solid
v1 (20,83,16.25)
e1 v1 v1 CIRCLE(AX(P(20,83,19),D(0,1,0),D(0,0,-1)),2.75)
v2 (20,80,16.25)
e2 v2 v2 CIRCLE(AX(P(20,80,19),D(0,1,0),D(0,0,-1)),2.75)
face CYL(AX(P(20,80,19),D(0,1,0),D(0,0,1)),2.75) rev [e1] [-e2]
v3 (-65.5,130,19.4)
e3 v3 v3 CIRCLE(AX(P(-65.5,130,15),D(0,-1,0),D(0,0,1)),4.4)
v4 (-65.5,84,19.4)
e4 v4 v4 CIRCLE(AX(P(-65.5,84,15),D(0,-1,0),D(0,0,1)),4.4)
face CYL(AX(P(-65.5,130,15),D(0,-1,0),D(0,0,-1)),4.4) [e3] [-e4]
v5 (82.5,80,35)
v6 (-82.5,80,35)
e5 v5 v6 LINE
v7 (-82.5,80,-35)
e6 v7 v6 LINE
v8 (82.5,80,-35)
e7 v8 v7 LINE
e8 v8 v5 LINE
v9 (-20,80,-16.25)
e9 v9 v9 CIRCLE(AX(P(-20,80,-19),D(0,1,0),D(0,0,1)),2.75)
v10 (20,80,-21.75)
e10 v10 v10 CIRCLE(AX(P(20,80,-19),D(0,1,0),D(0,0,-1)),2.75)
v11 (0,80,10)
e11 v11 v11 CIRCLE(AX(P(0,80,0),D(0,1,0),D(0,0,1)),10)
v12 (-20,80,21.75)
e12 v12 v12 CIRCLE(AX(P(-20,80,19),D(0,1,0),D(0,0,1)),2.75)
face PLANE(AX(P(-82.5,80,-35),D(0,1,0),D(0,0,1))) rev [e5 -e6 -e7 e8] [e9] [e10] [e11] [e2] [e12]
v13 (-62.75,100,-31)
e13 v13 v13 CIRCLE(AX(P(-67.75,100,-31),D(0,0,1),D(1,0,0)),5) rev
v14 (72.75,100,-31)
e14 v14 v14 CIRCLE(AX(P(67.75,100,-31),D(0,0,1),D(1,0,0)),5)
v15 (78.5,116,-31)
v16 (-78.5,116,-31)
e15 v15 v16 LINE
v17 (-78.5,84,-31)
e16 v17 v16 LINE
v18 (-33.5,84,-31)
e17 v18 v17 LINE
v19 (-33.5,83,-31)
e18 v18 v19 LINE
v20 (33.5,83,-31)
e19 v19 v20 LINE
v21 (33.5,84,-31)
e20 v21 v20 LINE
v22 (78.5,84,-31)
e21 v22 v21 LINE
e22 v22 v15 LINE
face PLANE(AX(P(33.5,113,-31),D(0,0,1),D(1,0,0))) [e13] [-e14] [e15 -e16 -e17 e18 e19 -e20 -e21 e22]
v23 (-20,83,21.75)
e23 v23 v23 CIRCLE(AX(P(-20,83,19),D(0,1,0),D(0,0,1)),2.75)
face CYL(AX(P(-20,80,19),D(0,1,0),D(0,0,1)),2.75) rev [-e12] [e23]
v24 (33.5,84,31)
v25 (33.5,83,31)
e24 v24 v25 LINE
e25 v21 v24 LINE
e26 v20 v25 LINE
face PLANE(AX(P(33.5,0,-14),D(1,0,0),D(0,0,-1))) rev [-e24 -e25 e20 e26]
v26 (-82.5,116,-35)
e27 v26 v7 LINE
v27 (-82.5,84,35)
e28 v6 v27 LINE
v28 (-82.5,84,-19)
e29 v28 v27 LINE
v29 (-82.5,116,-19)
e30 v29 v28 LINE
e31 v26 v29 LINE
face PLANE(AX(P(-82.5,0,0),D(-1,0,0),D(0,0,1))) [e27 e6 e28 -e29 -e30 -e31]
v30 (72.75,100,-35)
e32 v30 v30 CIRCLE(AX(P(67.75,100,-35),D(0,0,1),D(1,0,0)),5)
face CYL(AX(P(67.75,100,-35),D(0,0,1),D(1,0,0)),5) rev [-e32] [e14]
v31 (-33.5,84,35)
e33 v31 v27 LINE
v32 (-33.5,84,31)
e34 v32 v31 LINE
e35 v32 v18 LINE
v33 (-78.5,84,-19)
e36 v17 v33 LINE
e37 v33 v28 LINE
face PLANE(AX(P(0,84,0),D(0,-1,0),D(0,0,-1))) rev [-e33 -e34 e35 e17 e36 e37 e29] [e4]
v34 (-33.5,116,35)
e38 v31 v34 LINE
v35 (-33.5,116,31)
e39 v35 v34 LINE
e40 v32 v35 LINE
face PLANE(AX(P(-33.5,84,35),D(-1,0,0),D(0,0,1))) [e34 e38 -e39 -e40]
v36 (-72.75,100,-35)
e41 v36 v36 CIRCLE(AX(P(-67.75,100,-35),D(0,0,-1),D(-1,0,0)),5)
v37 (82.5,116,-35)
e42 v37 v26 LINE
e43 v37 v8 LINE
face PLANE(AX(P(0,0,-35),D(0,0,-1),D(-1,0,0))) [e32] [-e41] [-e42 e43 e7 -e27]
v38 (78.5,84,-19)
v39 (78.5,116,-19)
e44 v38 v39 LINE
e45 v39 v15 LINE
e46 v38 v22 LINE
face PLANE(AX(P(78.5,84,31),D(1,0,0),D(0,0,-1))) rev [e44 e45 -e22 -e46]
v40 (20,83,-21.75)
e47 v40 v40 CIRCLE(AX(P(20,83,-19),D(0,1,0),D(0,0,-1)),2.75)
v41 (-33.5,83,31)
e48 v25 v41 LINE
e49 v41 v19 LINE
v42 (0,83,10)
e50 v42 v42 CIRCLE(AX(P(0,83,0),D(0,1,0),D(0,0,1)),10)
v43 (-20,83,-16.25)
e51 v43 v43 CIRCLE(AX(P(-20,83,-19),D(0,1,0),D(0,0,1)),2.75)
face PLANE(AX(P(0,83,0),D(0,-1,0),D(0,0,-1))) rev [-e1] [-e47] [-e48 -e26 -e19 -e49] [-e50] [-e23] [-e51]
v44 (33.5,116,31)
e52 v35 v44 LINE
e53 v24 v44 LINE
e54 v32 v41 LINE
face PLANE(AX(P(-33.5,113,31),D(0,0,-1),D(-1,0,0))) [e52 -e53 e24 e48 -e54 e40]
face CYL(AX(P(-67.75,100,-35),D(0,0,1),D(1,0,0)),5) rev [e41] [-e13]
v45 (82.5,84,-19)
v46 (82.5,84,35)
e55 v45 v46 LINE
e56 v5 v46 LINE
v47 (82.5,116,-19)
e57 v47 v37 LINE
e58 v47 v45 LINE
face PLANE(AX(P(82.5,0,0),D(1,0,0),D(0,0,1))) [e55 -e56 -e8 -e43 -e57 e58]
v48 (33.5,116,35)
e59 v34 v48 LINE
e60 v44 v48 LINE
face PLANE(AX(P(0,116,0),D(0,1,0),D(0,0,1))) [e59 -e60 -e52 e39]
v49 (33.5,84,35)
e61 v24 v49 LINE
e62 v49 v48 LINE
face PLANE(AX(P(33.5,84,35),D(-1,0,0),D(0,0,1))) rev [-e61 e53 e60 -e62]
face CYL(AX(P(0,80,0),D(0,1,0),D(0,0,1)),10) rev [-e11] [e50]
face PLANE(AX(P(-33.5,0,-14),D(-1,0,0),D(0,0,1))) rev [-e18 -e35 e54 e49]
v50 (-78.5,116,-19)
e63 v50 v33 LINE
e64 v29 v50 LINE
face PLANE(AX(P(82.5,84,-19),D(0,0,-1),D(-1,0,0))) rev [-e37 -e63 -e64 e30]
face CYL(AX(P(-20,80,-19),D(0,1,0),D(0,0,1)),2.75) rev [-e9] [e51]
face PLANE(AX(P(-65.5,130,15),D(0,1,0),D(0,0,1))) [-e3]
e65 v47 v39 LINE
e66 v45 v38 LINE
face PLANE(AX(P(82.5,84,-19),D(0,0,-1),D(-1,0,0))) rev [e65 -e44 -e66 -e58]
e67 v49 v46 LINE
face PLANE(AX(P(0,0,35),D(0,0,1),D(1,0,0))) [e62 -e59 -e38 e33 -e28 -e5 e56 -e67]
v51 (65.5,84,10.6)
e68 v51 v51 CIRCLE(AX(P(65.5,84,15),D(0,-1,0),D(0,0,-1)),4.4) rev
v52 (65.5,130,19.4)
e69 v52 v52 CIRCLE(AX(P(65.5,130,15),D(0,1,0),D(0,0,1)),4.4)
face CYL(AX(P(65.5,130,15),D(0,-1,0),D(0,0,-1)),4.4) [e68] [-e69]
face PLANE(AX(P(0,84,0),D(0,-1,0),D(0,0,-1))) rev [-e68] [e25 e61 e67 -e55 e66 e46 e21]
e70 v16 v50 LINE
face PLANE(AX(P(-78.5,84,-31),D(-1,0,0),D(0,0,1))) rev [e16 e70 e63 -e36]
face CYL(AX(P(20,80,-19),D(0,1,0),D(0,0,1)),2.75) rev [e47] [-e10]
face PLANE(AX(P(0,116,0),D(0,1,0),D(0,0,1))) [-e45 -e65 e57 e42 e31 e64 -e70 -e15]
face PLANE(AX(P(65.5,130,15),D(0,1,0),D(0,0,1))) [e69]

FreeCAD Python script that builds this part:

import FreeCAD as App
import Part
import Sketcher

V = App.Vector
Q = App.Units.Quantity


def add_polygon(sketch, points):
    """Adds a closed chain of lines whose ends are joined by coincident constraints."""
    first, n = sketch.GeometryCount, len(points)
    for a, b in zip(points, points[1:] + points[:1]):
        sketch.addGeometry(Part.LineSegment(App.Vector(*a, 0), App.Vector(*b, 0)), False)
    for i in range(n):
        sketch.addConstraint(Sketcher.Constraint("Coincident", first + i, 2, first + (i + 1) % n, 1))

doc = App.newDocument("Part")
params = doc.addObject("Spreadsheet::Sheet", "Params")
for row, (alias, value) in enumerate([
    ("sketch1_diameter", "10 mm"),
    ("sketch1_diameter2", "3.4 mm"),
    ("sketch1_width", "75 mm"),
    ("sketch1_width2", "10 mm"),
    ("sketch1_height", "40 mm"),
    ("pad1_length", "3 mm"),
    ("sketch2_width", "67 mm"),
    ("sketch2_height", "28 mm"),
    ("sketch3_width", "75 mm"),
    ("sketch3_width2", "67 mm"),
    ("sketch3_height", "70 mm"),
    ("sketch3_height2", "40 mm"),
    ("pad2_length", "110 mm"),
    ("pad2_length2", "3 mm"),
    ("sketch4_width", "67 mm"),
    ("sketch4_height", "11 mm"),
    ("sketch5_width", "37 mm"),
    ("sketch5_height", "70 mm"),
    ("pad3_length", "45 mm"),
    ("sketch6_width", "45 mm"),
    ("sketch6_height", "62 mm"),
    ("pocket3_length", "29 mm"),
    ("sketch7_width", "45 mm"),
    ("sketch7_height", "4 mm"),
    ("sketch8_height", "38 mm"),
    ("sketch8_width", "28.5 mm"),
    ("sketch9_width", "5 mm"),
    ("sketch9_height", "38 mm"),
    ("pad4_length", "32 mm"),
    ("sketch10_diameter", "10 mm"),
    ("sketch10_diameter2", "3.4 mm"),
    ("pocket6_length", "32 mm"),
    ("sketch11_width", "165 mm"),
    ("sketch11_width2", "157 mm"),
    ("sketch11_height", "70 mm"),
    ("sketch11_height2", "62 mm"),
    ("pad5_length", "3 mm"),
    ("sketch12_width", "20 mm"),
    ("sketch13_diameter", "10 mm"),
    ("sketch14_width", "5 mm"),
    ("sketch14_height", "38 mm"),
    ("pad6_length", "32 mm"),
    ("sketch15_diameter", "10 mm"),
    ("sketch15_diameter2", "3.4 mm"),
    ("pocket9_length", "32 mm"),
    ("sketch16_height", "38 mm"),
    ("sketch16_width", "3.5 mm"),
    ("pocket10_length", "10 mm"),
    ("sketch17_diameter", "2.4 mm"),
    ("pocket11_length", "10 mm"),
    ("sketch18_width", "10 mm"),
    ("sketch18_height", "80 mm"),
    ("sketch19_width", "55 mm"),
    ("sketch19_height", "80 mm"),
    ("sketch20_width", "67 mm"),
    ("sketch20_height", "62 mm"),
    ("pad7_length", "3 mm"),
    ("sketch21_diameter", "20 mm"),
    ("sketch21_diameter2", "5.5 mm"),
    ("sketch22_width", "64 mm"),
    ("sketch22_height", "38 mm"),
    ("pocket15_length", "115 mm"),
    ("sketch23_width", "49 mm"),
    ("sketch23_height", "35 mm"),
    ("pocket16_length", "32 mm"),
    ("sketch24_diameter", "8.8 mm"),
    ("pad8_length", "46 mm"),
], start=1):
    params.set(f"A{row}", alias)
    params.set(f"B{row}", "=" + value)
    params.setAlias(f"B{row}", alias)

body = doc.addObject("PartDesign::Body", "Body")

sketch1 = doc.addObject("Sketcher::SketchObject", "Sketch")
body.addObject(sketch1)
sketch1.AttachmentSupport = (doc.XZ_Plane, [""])
sketch1.MapMode = "FlatFace"
add_polygon(sketch1, [(-37.5, -20), (-37.5, 20), (37.5, 20), (37.5, -20)])
sketch1.addGeometry(Part.Circle(V(-30, 8.2, 0), V(0, 0, 1), 1.7), False)
sketch1.addGeometry(Part.Circle(V(-12, 8.2, 0), V(0, 0, 1), 1.7), False)
sketch1.addGeometry(Part.Circle(V(12, 8.2, 0), V(0, 0, 1), 1.7), False)
sketch1.addGeometry(Part.Circle(V(30, 8.2, 0), V(0, 0, 1), 1.7), False)
sketch1.addGeometry(Part.Circle(V(-21, 0, 0), V(0, 0, 1), 5), False)
add_polygon(sketch1, [(5, 10), (-5, 10), (-5, -10), (5, -10)])
sketch1.addGeometry(Part.Circle(V(-30, -8.2, 0), V(0, 0, 1), 1.7), False)
sketch1.addGeometry(Part.Circle(V(-12, -8.2, 0), V(0, 0, 1), 1.7), False)
sketch1.addGeometry(Part.Circle(V(21, 0, 0), V(0, 0, 1), 5), False)
sketch1.addGeometry(Part.Circle(V(12, -8.2, 0), V(0, 0, 1), 1.7), False)
sketch1.addGeometry(Part.Circle(V(30, -8.2, 0), V(0, 0, 1), 1.7), False)
sketch1.addConstraint([
    Sketcher.Constraint("Vertical", 0),
    Sketcher.Constraint("Horizontal", 1),
    Sketcher.Constraint("Vertical", 2),
    Sketcher.Constraint("Horizontal", 3),
    Sketcher.Constraint("Horizontal", 9),
    Sketcher.Constraint("Vertical", 10),
    Sketcher.Constraint("Horizontal", 11),
    Sketcher.Constraint("Vertical", 12),
    Sketcher.Constraint("Equal", 4, 5),
    Sketcher.Constraint("Equal", 5, 6),
    Sketcher.Constraint("Equal", 6, 7),
    Sketcher.Constraint("Equal", 7, 13),
    Sketcher.Constraint("Equal", 13, 14),
    Sketcher.Constraint("Equal", 8, 15),
    Sketcher.Constraint("Equal", 14, 16),
    Sketcher.Constraint("Equal", 16, 17),
    Sketcher.Constraint("Symmetric", 7, 3, 13, 3, -1, 1),
    Sketcher.Constraint("Symmetric", 6, 3, 14, 3, -1, 1),
    Sketcher.Constraint("Symmetric", 8, 3, 15, 3, -1, 1),
    Sketcher.Constraint("Symmetric", 5, 3, 16, 3, -1, 1),
    Sketcher.Constraint("Symmetric", 4, 3, 17, 3, -1, 1),
    Sketcher.Constraint("Symmetric", 0, 2, 2, 2, -1, 1),
    Sketcher.Constraint("Symmetric", 9, 2, 11, 2, -1, 1),
    Sketcher.Constraint("Symmetric", 5, 3, 6, 3, -2),
    Sketcher.Constraint("Symmetric", 4, 3, 7, 3, -2),
    Sketcher.Constraint("PointOnObject", 8, 3, -1),
    Sketcher.Constraint("Horizontal", 4, 3, 5, 3),
    Sketcher.Constraint("Diameter", 8, Q("10 mm")),
    Sketcher.Constraint("Diameter", 4, Q("3.4 mm")),
    Sketcher.Constraint("DistanceX", 1, 1, 1, 2, Q("75 mm")),
    Sketcher.Constraint("DistanceX", 9, 2, 9, 1, Q("10 mm")),
    Sketcher.Constraint("DistanceY", 0, 1, 0, 2, Q("40 mm")),
    Sketcher.Constraint("DistanceY", 10, 2, 10, 1, Q("20 mm")),
    Sketcher.Constraint("DistanceX", 4, 3, -1, 1, Q("30 mm")),
    Sketcher.Constraint("DistanceX", 5, 3, -1, 1, Q("12 mm")),
    Sketcher.Constraint("DistanceX", 8, 3, -1, 1, Q("21 mm")),
    Sketcher.Constraint("DistanceY", 13, 3, 4, 3, Q("16.5 mm")),
])
sketch1.setExpression("Constraints[35]", "Params.sketch1_diameter")
sketch1.setExpression("Constraints[36]", "Params.sketch1_diameter2")
sketch1.setExpression("Constraints[37]", "Params.sketch1_width")
sketch1.setExpression("Constraints[38]", "Params.sketch1_width2")
sketch1.setExpression("Constraints[39]", "Params.sketch1_height")
pad1 = doc.addObject("PartDesign::Pad", "Pad")
body.addObject(pad1)
pad1.Profile = sketch1
pad1.setExpression("Length", "Params.pad1_length")
pad1.Reversed = True

sketch2 = doc.addObject("Sketcher::SketchObject", "Sketch001")
body.addObject(sketch2)
sketch2.AttachmentSupport = (doc.XZ_Plane, [""])
sketch2.MapMode = "FlatFace"
sketch2.AttachmentOffset = App.Placement(V(0, 0, -3), App.Rotation())
add_polygon(sketch2, [(-34, -14), (-34, 14), (34, 14), (34, -14)])
sketch2.addConstraint([
    Sketcher.Constraint("Vertical", 0),
    Sketcher.Constraint("Horizontal", 1),
    Sketcher.Constraint("Vertical", 2),
    Sketcher.Constraint("Horizontal", 3),
    Sketcher.Constraint("Symmetric", 0, 2, 2, 2, -1, 1),
    Sketcher.Constraint("DistanceX", 1, 1, 1, 2, Q("67 mm")),
    Sketcher.Constraint("DistanceY", 0, 1, 0, 2, Q("28 mm")),
])
sketch2.setExpression("Constraints[9]", "Params.sketch2_width")
sketch2.setExpression("Constraints[10]", "Params.sketch2_height")
pocket1 = doc.addObject("PartDesign::Pocket", "Pocket")
body.addObject(pocket1)
pocket1.Profile = sketch2
pocket1.Type = "ThroughAll"
pocket1.Midplane = True

sketch3 = doc.addObject("Sketcher::SketchObject", "Sketch002")
body.addObject(sketch3)
sketch3.AttachmentSupport = (doc.XZ_Plane, [""])
sketch3.MapMode = "FlatFace"
sketch3.AttachmentOffset = App.Placement(V(0, 0, -3), App.Rotation())
add_polygon(sketch3, [(38, 35), (38, -35), (-38, -35), (-38, 35)])
add_polygon(sketch3, [(-34, -20), (34, -20), (34, 20), (-34, 20)])
sketch3.addConstraint([
    Sketcher.Constraint("Vertical", 0),
    Sketcher.Constraint("Horizontal", 1),
    Sketcher.Constraint("Vertical", 2),
    Sketcher.Constraint("Horizontal", 3),
    Sketcher.Constraint("Horizontal", 4),
    Sketcher.Constraint("Vertical", 5),
    Sketcher.Constraint("Horizontal", 6),
    Sketcher.Constraint("Vertical", 7),
    Sketcher.Constraint("Symmetric", 0, 2, 2, 2, -1, 1),
    Sketcher.Constraint("Symmetric", 4, 2, 6, 2, -1, 1),
    Sketcher.Constraint("DistanceX", 1, 2, 1, 1, Q("75 mm")),
    Sketcher.Constraint("DistanceX", 4, 1, 4, 2, Q("67 mm")),
    Sketcher.Constraint("DistanceY", 0, 2, 0, 1, Q("70 mm")),
    Sketcher.Constraint("DistanceY", 5, 1, 5, 2, Q("40 mm")),
])
sketch3.setExpression("Constraints[18]", "Params.sketch3_width")
sketch3.setExpression("Constraints[19]", "Params.sketch3_width2")
sketch3.setExpression("Constraints[20]", "Params.sketch3_height")
sketch3.setExpression("Constraints[21]", "Params.sketch3_height2")
pad2 = doc.addObject("PartDesign::Pad", "Pad001")
body.addObject(pad2)
pad2.Profile = sketch3
pad2.Type = "TwoLengths"
pad2.setExpression("Length", "Params.pad2_length")
pad2.setExpression("Length2", "Params.pad2_length2")
pad2.Reversed = True

sketch4 = doc.addObject("Sketcher::SketchObject", "Sketch003")
body.addObject(sketch4)
sketch4.AttachmentSupport = (doc.XZ_Plane, [""])
sketch4.MapMode = "FlatFace"
sketch4.AttachmentOffset = App.Placement(V(0, 0, -3), App.Rotation())
add_polygon(sketch4, [(-34, 20), (-34, 31), (34, 31), (34, 20)])
add_polygon(sketch4, [(-34, -31), (-34, -20), (34, -20), (34, -31)])
sketch4.addConstraint([
    Sketcher.Constraint("Vertical", 0),
    Sketcher.Constraint("Horizontal", 1),
    Sketcher.Constraint("Vertical", 2),
    Sketcher.Constraint("Horizontal", 3),
    Sketcher.Constraint("Vertical", 4),
    Sketcher.Constraint("Horizontal", 5),
    Sketcher.Constraint("Vertical", 6),
    Sketcher.Constraint("Horizontal", 7),
    Sketcher.Constraint("Symmetric", 2, 2, 4, 2, -1, 1),
    Sketcher.Constraint("Symmetric", 0, 2, 6, 2, -1, 1),
    Sketcher.Constraint("Vertical", 3, 2, 4, 2),
    Sketcher.Constraint("DistanceX", 1, 1, 1, 2, Q("67 mm")),
    Sketcher.Constraint("DistanceY", 0, 1, 0, 2, Q("11 mm")),
    Sketcher.Constraint("DistanceY", -1, 1, 0, 2, Q("31 mm")),
])
sketch4.setExpression("Constraints[19]", "Params.sketch4_width")
sketch4.setExpression("Constraints[20]", "Params.sketch4_height")
pocket2 = doc.addObject("PartDesign::Pocket", "Pocket001")
body.addObject(pocket2)
pocket2.Profile = sketch4
pocket2.Type = "ThroughAll"

sketch5 = doc.addObject("Sketcher::SketchObject", "Sketch004")
body.addObject(sketch5)
sketch5.AttachmentSupport = (doc.YZ_Plane, [""])
sketch5.MapMode = "FlatFace"
sketch5.AttachmentOffset = App.Placement(V(0, 0, -37.5), App.Rotation())
add_polygon(sketch5, [(113, -35), (76, -35), (76, 35), (113, 35)])
sketch5.addConstraint([
    Sketcher.Constraint("Horizontal", 0),
    Sketcher.Constraint("Vertical", 1),
    Sketcher.Constraint("Horizontal", 2),
    Sketcher.Constraint("Vertical", 3),
    Sketcher.Constraint("DistanceX", 0, 2, 0, 1, Q("37 mm")),
    Sketcher.Constraint("DistanceY", 1, 1, 1, 2, Q("70 mm")),
    Sketcher.Constraint("DistanceX", -1, 1, 0, 2, Q("76 mm")),
    Sketcher.Constraint("DistanceY", 0, 2, -1, 1, Q("35 mm")),
])
sketch5.setExpression("Constraints[8]", "Params.sketch5_width")
sketch5.setExpression("Constraints[9]", "Params.sketch5_height")
pad3 = doc.addObject("PartDesign::Pad", "Pad002")
body.addObject(pad3)
pad3.Profile = sketch5
pad3.setExpression("Length", "Params.pad3_length")
pad3.Reversed = True
doc.recompute()

mirrored = doc.addObject("PartDesign::Mirrored", "Mirrored")
body.addObject(mirrored)
mirrored.Originals = [pad3]
mirrored.MirrorPlane = (doc.YZ_Plane, [""])
body.Tip = mirrored

sketch6 = doc.addObject("Sketcher::SketchObject", "Sketch005")
body.addObject(sketch6)
sketch6.AttachmentSupport = (doc.XZ_Plane, [""])
sketch6.MapMode = "FlatFace"
sketch6.AttachmentOffset = App.Placement(V(0, 0, -113), App.Rotation())
add_polygon(sketch6, [(-78, -31), (-78, 31), (-34, 31), (-34, -31)])
add_polygon(sketch6, [(34, -31), (34, 31), (78, 31), (78, -31)])
sketch6.addConstraint([
    Sketcher.Constraint("Vertical", 0),
    Sketcher.Constraint("Horizontal", 1),
    Sketcher.Constraint("Vertical", 2),
    Sketcher.Constraint("Horizontal", 3),
    Sketcher.Constraint("Vertical", 4),
    Sketcher.Constraint("Horizontal", 5),
    Sketcher.Constraint("Vertical", 6),
    Sketcher.Constraint("Horizontal", 7),
    Sketcher.Constraint("Symmetric", 2, 2, 4, 2, -1, 1),
    Sketcher.Constraint("Symmetric", 0, 2, 6, 2, -1, 1),
    Sketcher.Constraint("Horizontal", 1, 2, 4, 2),
    Sketcher.Constraint("DistanceX", 1, 1, 1, 2, Q("45 mm")),
    Sketcher.Constraint("DistanceY", 0, 1, 0, 2, Q("62 mm")),
    Sketcher.Constraint("DistanceX", 1, 2, 4, 2, Q("67 mm")),
])
sketch6.setExpression("Constraints[19]", "Params.sketch6_width")
sketch6.setExpression("Constraints[20]", "Params.sketch6_height")
pocket3 = doc.addObject("PartDesign::Pocket", "Pocket002")
body.addObject(pocket3)
pocket3.Profile = sketch6
pocket3.setExpression("Length", "Params.pocket3_length")
pocket3.Reversed = True

sketch7 = doc.addObject("Sketcher::SketchObject", "Sketch006")
body.addObject(sketch7)
sketch7.AttachmentSupport = (doc.XY_Plane, [""])
sketch7.MapMode = "FlatFace"
sketch7.AttachmentOffset = App.Placement(V(0, 0, 35), App.Rotation())
add_polygon(sketch7, [(-82.5, 80), (-82.5, 76), (-37.5, 76), (-37.5, 80)])
add_polygon(sketch7, [(37.5, 80), (37.5, 76), (82.5, 76), (82.5, 80)])
sketch7.addConstraint([
    Sketcher.Constraint("Vertical", 0),
    Sketcher.Constraint("Horizontal", 1),
    Sketcher.Constraint("Vertical", 2),
    Sketcher.Constraint("Horizontal", 3),
    Sketcher.Constraint("Vertical", 4),
    Sketcher.Constraint("Horizontal", 5),
    Sketcher.Constraint("Vertical", 6),
    Sketcher.Constraint("Horizontal", 7),
    Sketcher.Constraint("Symmetric", 1, 2, 4, 2, -2),
    Sketcher.Constraint("Symmetric", 3, 2, 6, 2, -2),
    Sketcher.Constraint("DistanceX", 1, 1, 1, 2, Q("45 mm")),
    Sketcher.Constraint("DistanceY", 0, 2, 0, 1, Q("4 mm")),
    Sketcher.Constraint("DistanceY", -1, 1, 0, 2, Q("76 mm")),
    Sketcher.Constraint("DistanceX", 1, 2, 4, 2, Q("75 mm")),
])
sketch7.setExpression("Constraints[18]", "Params.sketch7_width")
sketch7.setExpression("Constraints[19]", "Params.sketch7_height")
pocket4 = doc.addObject("PartDesign::Pocket", "Pocket003")
body.addObject(pocket4)
pocket4.Profile = sketch7
pocket4.Type = "ThroughAll"

sketch8 = doc.addObject("Sketcher::SketchObject", "Sketch007")
body.addObject(sketch8)
sketch8.AttachmentSupport = (doc.YZ_Plane, [""])
sketch8.MapMode = "FlatFace"
sketch8.AttachmentOffset = App.Placement(V(0, 0, -82.5), App.Rotation())
add_polygon(sketch8, [(112, -19), (84, -19), (84, 19), (112, 19)])
sketch8.addConstraint([
    Sketcher.Constraint("Horizontal", 0),
    Sketcher.Constraint("Vertical", 1),
    Sketcher.Constraint("Horizontal", 2),
    Sketcher.Constraint("Vertical", 3),
    Sketcher.Constraint("DistanceY", 1, 1, 1, 2, Q("38 mm")),
    Sketcher.Constraint("DistanceX", 0, 2, 0, 1, Q("28.5 mm")),
    Sketcher.Constraint("DistanceX", -1, 1, 0, 2, Q("84 mm")),
    Sketcher.Constraint("DistanceY", 0, 2, -1, 1, Q("19 mm")),
])
sketch8.setExpression("Constraints[8]", "Params.sketch8_height")
sketch8.setExpression("Constraints[9]", "Params.sketch8_width")
pocket5 = doc.addObject("PartDesign::Pocket", "Pocket004")
body.addObject(pocket5)
pocket5.Profile = sketch8
pocket5.Type = "ThroughAll"
pocket5.Reversed = True

sketch9 = doc.addObject("Sketcher::SketchObject", "Sketch008")
body.addObject(sketch9)
sketch9.AttachmentSupport = (doc.XZ_Plane, [""])
sketch9.MapMode = "FlatFace"
sketch9.AttachmentOffset = App.Placement(V(0, 0, -84), App.Rotation())
add_polygon(sketch9, [(-57, -19), (-57, 19), (-52, 19), (-52, -19)])
sketch9.addConstraint([
    Sketcher.Constraint("Vertical", 0),
    Sketcher.Constraint("Horizontal", 1),
    Sketcher.Constraint("Vertical", 2),
    Sketcher.Constraint("Horizontal", 3),
    Sketcher.Constraint("DistanceX", 1, 1, 1, 2, Q("5 mm")),
    Sketcher.Constraint("DistanceY", 0, 1, 0, 2, Q("38 mm")),
    Sketcher.Constraint("DistanceX", 0, 2, -1, 1, Q("57 mm")),
    Sketcher.Constraint("DistanceY", -1, 1, 0, 2, Q("19 mm")),
])
sketch9.setExpression("Constraints[8]", "Params.sketch9_width")
sketch9.setExpression("Constraints[9]", "Params.sketch9_height")
pad4 = doc.addObject("PartDesign::Pad", "Pad003")
body.addObject(pad4)
pad4.Profile = sketch9
pad4.setExpression("Length", "Params.pad4_length")
pad4.Reversed = True

sketch10 = doc.addObject("Sketcher::SketchObject", "Sketch009")
body.addObject(sketch10)
sketch10.AttachmentSupport = (doc.YZ_Plane, [""])
sketch10.MapMode = "FlatFace"
sketch10.AttachmentOffset = App.Placement(V(0, 0, -57), App.Rotation())
sketch10.addGeometry([
    Part.Circle(V(98.2, 0, 0), V(0, 0, 1), 5),
    Part.Circle(V(106.5, -9, 0), V(0, 0, 1), 1.7),
    Part.Circle(V(106.5, 9, 0), V(0, 0, 1), 1.7),
    Part.Circle(V(90, 9, 0), V(0, 0, 1), 1.7),
    Part.Circle(V(90, -9, 0), V(0, 0, 1), 1.7),
], False)
sketch10.addConstraint([
    Sketcher.Constraint("Equal", 1, 2),
    Sketcher.Constraint("Equal", 2, 3),
    Sketcher.Constraint("Equal", 3, 4),
    Sketcher.Constraint("Symmetric", 1, 3, 2, 3, -1),
    Sketcher.Constraint("Symmetric", 3, 3, 4, 3, -1),
    Sketcher.Constraint("PointOnObject", 0, 3, -1),
    Sketcher.Constraint("Horizontal", 2, 3, 3, 3),
    Sketcher.Constraint("Diameter", 0, Q("10 mm")),
    Sketcher.Constraint("Diameter", 1, Q("3.4 mm")),
    Sketcher.Constraint("DistanceY", 1, 3, -1, 1, Q("9 mm")),
    Sketcher.Constraint("DistanceX", -1, 1, 3, 3, Q("90 mm")),
    Sketcher.Constraint("DistanceX", -1, 1, 1, 3, Q("106.5 mm")),
    Sketcher.Constraint("DistanceX", -1, 1, 0, 3, Q("98.25 mm")),
])
sketch10.setExpression("Constraints[7]", "Params.sketch10_diameter")
sketch10.setExpression("Constraints[8]", "Params.sketch10_diameter2")
pocket6 = doc.addObject("PartDesign::Pocket", "Pocket005")
body.addObject(pocket6)
pocket6.Profile = sketch10
pocket6.setExpression("Length", "Params.pocket6_length")
pocket6.Reversed = True
doc.recompute()

mirrored2 = doc.addObject("PartDesign::Mirrored", "Mirrored001")
body.addObject(mirrored2)
mirrored2.Originals = [pad4, pocket6]
mirrored2.MirrorPlane = (doc.YZ_Plane, [""])
body.Tip = mirrored2

sketch11 = doc.addObject("Sketcher::SketchObject", "Sketch010")
body.addObject(sketch11)
sketch11.AttachmentSupport = (doc.XZ_Plane, [""])
sketch11.MapMode = "FlatFace"
sketch11.AttachmentOffset = App.Placement(V(0, 0, -113), App.Rotation())
add_polygon(sketch11, [(-82, -35), (-82, 35), (82, 35), (82, -35)])
add_polygon(sketch11, [(78, 31), (-78, 31), (-78, -31), (78, -31)])
sketch11.addConstraint([
    Sketcher.Constraint("Vertical", 0),
    Sketcher.Constraint("Horizontal", 1),
    Sketcher.Constraint("Vertical", 2),
    Sketcher.Constraint("Horizontal", 3),
    Sketcher.Constraint("Horizontal", 4),
    Sketcher.Constraint("Vertical", 5),
    Sketcher.Constraint("Horizontal", 6),
    Sketcher.Constraint("Vertical", 7),
    Sketcher.Constraint("Symmetric", 0, 2, 2, 2, -1, 1),
    Sketcher.Constraint("Symmetric", 4, 2, 6, 2, -1, 1),
    Sketcher.Constraint("DistanceX", 1, 1, 1, 2, Q("165 mm")),
    Sketcher.Constraint("DistanceX", 4, 2, 4, 1, Q("157 mm")),
    Sketcher.Constraint("DistanceY", 0, 1, 0, 2, Q("70 mm")),
    Sketcher.Constraint("DistanceY", 5, 2, 5, 1, Q("62 mm")),
])
sketch11.setExpression("Constraints[18]", "Params.sketch11_width")
sketch11.setExpression("Constraints[19]", "Params.sketch11_width2")
sketch11.setExpression("Constraints[20]", "Params.sketch11_height")
sketch11.setExpression("Constraints[21]", "Params.sketch11_height2")
pad5 = doc.addObject("PartDesign::Pad", "Pad004")
body.addObject(pad5)
pad5.Profile = sketch11
pad5.setExpression("Length", "Params.pad5_length")
pad5.Reversed = True

sketch12 = doc.addObject("Sketcher::SketchObject", "Sketch011")
body.addObject(sketch12)
sketch12.AttachmentSupport = (doc.XY_Plane, [""])
sketch12.MapMode = "FlatFace"
sketch12.AttachmentOffset = App.Placement(V(0, 0, 35), App.Rotation())
add_polygon(sketch12, [(-10, 14), (-10, 9.2), (10, 9.2), (10, 14)])
sketch12.addConstraint([
    Sketcher.Constraint("Vertical", 0),
    Sketcher.Constraint("Horizontal", 1),
    Sketcher.Constraint("Vertical", 2),
    Sketcher.Constraint("Horizontal", 3),
    Sketcher.Constraint("DistanceX", 1, 1, 1, 2, Q("20 mm")),
    Sketcher.Constraint("DistanceX", 0, 2, -1, 1, Q("10 mm")),
    Sketcher.Constraint("DistanceY", 0, 2, 0, 1, Q("4.820648 mm")),
    Sketcher.Constraint("DistanceY", -1, 1, 0, 2, Q("9.225787 mm")),
])
sketch12.setExpression("Constraints[8]", "Params.sketch12_width")
pocket7 = doc.addObject("PartDesign::Pocket", "Pocket006")
body.addObject(pocket7)
pocket7.Profile = sketch12
pocket7.Type = "ThroughAll"

sketch13 = doc.addObject("Sketcher::SketchObject", "Sketch012")
body.addObject(sketch13)
sketch13.AttachmentSupport = (doc.XY_Plane, [""])
sketch13.MapMode = "FlatFace"
sketch13.AttachmentOffset = App.Placement(V(0, 0, 35), App.Rotation())
sketch13.addGeometry(Part.Circle(V(68, 100, 0), V(0, 0, 1), 5), False)
sketch13.addConstraint([
    Sketcher.Constraint("Diameter", 0, Q("10 mm")),
    Sketcher.Constraint("DistanceY", -1, 1, 0, 3, Q("100 mm")),
    Sketcher.Constraint("DistanceX", -1, 1, 0, 3, Q("67.75 mm")),
])
sketch13.setExpression("Constraints[0]", "Params.sketch13_diameter")
pocket8 = doc.addObject("PartDesign::Pocket", "Pocket007")
body.addObject(pocket8)
pocket8.Profile = sketch13
pocket8.Type = "ThroughAll"
doc.recompute()

mirrored3 = doc.addObject("PartDesign::Mirrored", "Mirrored002")
body.addObject(mirrored3)
mirrored3.Originals = [pocket8]
mirrored3.MirrorPlane = (doc.YZ_Plane, [""])
body.Tip = mirrored3
doc.recompute()

datumplane = doc.addObject("PartDesign::Plane", "DatumPlane")
body.addObject(datumplane)
datumplane.AttachmentSupport = (doc.XZ_Plane, [""])
datumplane.MapMode = "FlatFace"
datumplane.AttachmentOffset = App.Placement(V(0, 0, -116), App.Rotation())
mirrored4 = doc.addObject("PartDesign::Mirrored", "Mirrored003")
body.addObject(mirrored4)
mirrored4.Originals = [pad4, pocket6]
mirrored4.MirrorPlane = (datumplane, [""])
body.Tip = mirrored4

sketch14 = doc.addObject("Sketcher::SketchObject", "Sketch013")
body.addObject(sketch14)
sketch14.AttachmentSupport = (doc.XZ_Plane, [""])
sketch14.MapMode = "FlatFace"
sketch14.AttachmentOffset = App.Placement(V(0, 0, -148), App.Rotation())
add_polygon(sketch14, [(57, -19), (57, 19), (52, 19), (52, -19)])
sketch14.addConstraint([
    Sketcher.Constraint("Vertical", 0),
    Sketcher.Constraint("Horizontal", 1),
    Sketcher.Constraint("Vertical", 2),
    Sketcher.Constraint("Horizontal", 3),
    Sketcher.Constraint("DistanceX", 1, 2, 1, 1, Q("5 mm")),
    Sketcher.Constraint("DistanceY", 0, 1, 0, 2, Q("38 mm")),
    Sketcher.Constraint("DistanceX", -1, 1, 0, 2, Q("57 mm")),
    Sketcher.Constraint("DistanceY", -1, 1, 0, 2, Q("19 mm")),
])
sketch14.setExpression("Constraints[8]", "Params.sketch14_width")
sketch14.setExpression("Constraints[9]", "Params.sketch14_height")
pad6 = doc.addObject("PartDesign::Pad", "Pad005")
body.addObject(pad6)
pad6.Profile = sketch14
pad6.setExpression("Length", "Params.pad6_length")

sketch15 = doc.addObject("Sketcher::SketchObject", "Sketch014")
body.addObject(sketch15)
sketch15.AttachmentSupport = (doc.YZ_Plane, [""])
sketch15.MapMode = "FlatFace"
sketch15.AttachmentOffset = App.Placement(V(0, 0, 57), App.Rotation())
sketch15.addGeometry([
    Part.Circle(V(133.8, 0, 0), V(0, 0, 1), 5),
    Part.Circle(V(125.5, -9, 0), V(0, 0, 1), 1.7),
    Part.Circle(V(125.5, 9, 0), V(0, 0, 1), 1.7),
    Part.Circle(V(142, 9, 0), V(0, 0, 1), 1.7),
    Part.Circle(V(142, -9, 0), V(0, 0, 1), 1.7),
], False)
sketch15.addConstraint([
    Sketcher.Constraint("Equal", 1, 2),
    Sketcher.Constraint("Equal", 2, 3),
    Sketcher.Constraint("Equal", 3, 4),
    Sketcher.Constraint("Symmetric", 1, 3, 2, 3, -1),
    Sketcher.Constraint("Symmetric", 3, 3, 4, 3, -1),
    Sketcher.Constraint("PointOnObject", 0, 3, -1),
    Sketcher.Constraint("Horizontal", 2, 3, 3, 3),
    Sketcher.Constraint("Diameter", 0, Q("10 mm")),
    Sketcher.Constraint("Diameter", 1, Q("3.4 mm")),
    Sketcher.Constraint("DistanceY", 1, 3, -1, 1, Q("9 mm")),
    Sketcher.Constraint("DistanceX", -1, 1, 3, 3, Q("142 mm")),
    Sketcher.Constraint("DistanceX", -1, 1, 1, 3, Q("125.5 mm")),
    Sketcher.Constraint("DistanceX", -1, 1, 0, 3, Q("133.75 mm")),
])
sketch15.setExpression("Constraints[7]", "Params.sketch15_diameter")
sketch15.setExpression("Constraints[8]", "Params.sketch15_diameter2")
pocket9 = doc.addObject("PartDesign::Pocket", "Pocket008")
body.addObject(pocket9)
pocket9.Profile = sketch15
pocket9.setExpression("Length", "Params.pocket9_length")

sketch16 = doc.addObject("Sketcher::SketchObject", "Sketch015")
body.addObject(sketch16)
sketch16.AttachmentSupport = (doc.YZ_Plane, [""])
sketch16.MapMode = "FlatFace"
sketch16.AttachmentOffset = App.Placement(V(0, 0, 82.5), App.Rotation())
add_polygon(sketch16, [(116, 19), (112.5, 19), (112.5, -19), (116, -19)])
sketch16.addConstraint([
    Sketcher.Constraint("Horizontal", 0),
    Sketcher.Constraint("Vertical", 1),
    Sketcher.Constraint("Horizontal", 2),
    Sketcher.Constraint("Vertical", 3),
    Sketcher.Constraint("DistanceY", 1, 2, 1, 1, Q("38 mm")),
    Sketcher.Constraint("DistanceX", 0, 2, 0, 1, Q("3.5 mm")),
    Sketcher.Constraint("DistanceY", -1, 1, 0, 2, Q("19 mm")),
    Sketcher.Constraint("DistanceX", -1, 1, 2, 2, Q("116 mm")),
])
sketch16.setExpression("Constraints[8]", "Params.sketch16_height")
sketch16.setExpression("Constraints[9]", "Params.sketch16_width")
pocket10 = doc.addObject("PartDesign::Pocket", "Pocket009")
body.addObject(pocket10)
pocket10.Profile = sketch16
pocket10.setExpression("Length", "Params.pocket10_length")
doc.recompute()

mirrored5 = doc.addObject("PartDesign::Mirrored", "Mirrored004")
body.addObject(mirrored5)
mirrored5.Originals = [pocket10]
mirrored5.MirrorPlane = (doc.YZ_Plane, [""])
body.Tip = mirrored5

sketch17 = doc.addObject("Sketcher::SketchObject", "Sketch016")
body.addObject(sketch17)
sketch17.AttachmentSupport = (doc.XZ_Plane, [""])
sketch17.MapMode = "FlatFace"
sketch17.AttachmentOffset = App.Placement(V(0, 0, -3), App.Rotation())
sketch17.addGeometry([
    Part.Circle(V(-24, -17.5, 0), V(0, 0, 1), 1.2),
    Part.Circle(V(-12, -17.5, 0), V(0, 0, 1), 1.2),
    Part.Circle(V(12, -17.5, 0), V(0, 0, 1), 1.2),
    Part.Circle(V(-24, 17.5, 0), V(0, 0, 1), 1.2),
    Part.Circle(V(-12, 17.5, 0), V(0, 0, 1), 1.2),
    Part.Circle(V(24, -17.5, 0), V(0, 0, 1), 1.2),
    Part.Circle(V(12, 17.5, 0), V(0, 0, 1), 1.2),
    Part.Circle(V(24, 17.5, 0), V(0, 0, 1), 1.2),
], False)
sketch17.addConstraint([
    Sketcher.Constraint("Equal", 0, 1),
    Sketcher.Constraint("Equal", 1, 2),
    Sketcher.Constraint("Equal", 2, 3),
    Sketcher.Constraint("Equal", 3, 4),
    Sketcher.Constraint("Equal", 4, 5),
    Sketcher.Constraint("Equal", 5, 6),
    Sketcher.Constraint("Equal", 6, 7),
    Sketcher.Constraint("Symmetric", 2, 3, 4, 3, -1, 1),
    Sketcher.Constraint("Symmetric", 3, 3, 5, 3, -1, 1),
    Sketcher.Constraint("Symmetric", 1, 3, 6, 3, -1, 1),
    Sketcher.Constraint("Symmetric", 0, 3, 7, 3, -1, 1),
    Sketcher.Constraint("Symmetric", 1, 3, 2, 3, -2),
    Sketcher.Constraint("Symmetric", 0, 3, 5, 3, -2),
    Sketcher.Constraint("Horizontal", 0, 3, 1, 3),
    Sketcher.Constraint("Diameter", 0, Q("2.4 mm")),
    Sketcher.Constraint("DistanceX", 0, 3, -1, 1, Q("24 mm")),
    Sketcher.Constraint("DistanceX", 1, 3, -1, 1, Q("12 mm")),
    Sketcher.Constraint("DistanceY", 0, 3, 3, 3, Q("35 mm")),
])
sketch17.setExpression("Constraints[14]", "Params.sketch17_diameter")
pocket11 = doc.addObject("PartDesign::Pocket", "Pocket010")
body.addObject(pocket11)
pocket11.Profile = sketch17
pocket11.setExpression("Length", "Params.pocket11_length")
pocket11.Reversed = True

sketch18 = doc.addObject("Sketcher::SketchObject", "Sketch017")
body.addObject(sketch18)
sketch18.AttachmentSupport = (doc.XY_Plane, [""])
sketch18.MapMode = "FlatFace"
sketch18.AttachmentOffset = App.Placement(V(0, 0, 35), App.Rotation())
add_polygon(sketch18, [(28, 80), (28, 0), (38, 0), (38, 80)])
add_polygon(sketch18, [(-38, 80), (-38, 0), (-28, 0), (-28, 80)])
sketch18.addConstraint([
    Sketcher.Constraint("Vertical", 0),
    Sketcher.Constraint("Horizontal", 1),
    Sketcher.Constraint("Vertical", 2),
    Sketcher.Constraint("Horizontal", 3),
    Sketcher.Constraint("Vertical", 4),
    Sketcher.Constraint("Horizontal", 5),
    Sketcher.Constraint("Vertical", 6),
    Sketcher.Constraint("Horizontal", 7),
    Sketcher.Constraint("Symmetric", 1, 2, 4, 2, -1, 1),
    Sketcher.Constraint("Symmetric", 0, 2, 5, 2, -2),
    Sketcher.Constraint("Horizontal", 3, 2, 6, 2),
    Sketcher.Constraint("DistanceX", 1, 1, 1, 2, Q("10 mm")),
    Sketcher.Constraint("DistanceY", 0, 2, 0, 1, Q("80 mm")),
    Sketcher.Constraint("DistanceX", 4, 2, 0, 2, Q("65 mm")),
])
sketch18.setExpression("Constraints[19]", "Params.sketch18_width")
sketch18.setExpression("Constraints[20]", "Params.sketch18_height")
pocket12 = doc.addObject("PartDesign::Pocket", "Pocket011")
body.addObject(pocket12)
pocket12.Profile = sketch18
pocket12.Type = "ThroughAll"

sketch19 = doc.addObject("Sketcher::SketchObject", "Sketch018")
body.addObject(sketch19)
sketch19.AttachmentSupport = (doc.XY_Plane, [""])
sketch19.MapMode = "FlatFace"
sketch19.AttachmentOffset = App.Placement(V(0, 0, 35), App.Rotation())
add_polygon(sketch19, [(-28, 80), (-28, 0), (28, 0), (28, 80)])
sketch19.addConstraint([
    Sketcher.Constraint("Vertical", 0),
    Sketcher.Constraint("Horizontal", 1),
    Sketcher.Constraint("Vertical", 2),
    Sketcher.Constraint("Horizontal", 3),
    Sketcher.Constraint("Symmetric", 0, 2, 1, 2, -1, 1),
    Sketcher.Constraint("DistanceX", 1, 1, 1, 2, Q("55 mm")),
    Sketcher.Constraint("DistanceY", 0, 2, 0, 1, Q("80 mm")),
])
sketch19.setExpression("Constraints[9]", "Params.sketch19_width")
sketch19.setExpression("Constraints[10]", "Params.sketch19_height")
pocket13 = doc.addObject("PartDesign::Pocket", "Pocket012")
body.addObject(pocket13)
pocket13.Profile = sketch19
pocket13.Type = "ThroughAll"

sketch20 = doc.addObject("Sketcher::SketchObject", "Sketch019")
body.addObject(sketch20)
sketch20.AttachmentSupport = (doc.XZ_Plane, [""])
sketch20.MapMode = "FlatFace"
sketch20.AttachmentOffset = App.Placement(V(0, 0, -80), App.Rotation())
add_polygon(sketch20, [(-34, 31), (-34, -31), (34, -31), (34, 31)])
sketch20.addConstraint([
    Sketcher.Constraint("Vertical", 0),
    Sketcher.Constraint("Horizontal", 1),
    Sketcher.Constraint("Vertical", 2),
    Sketcher.Constraint("Horizontal", 3),
    Sketcher.Constraint("Symmetric", 0, 2, 2, 2, -1, 1),
    Sketcher.Constraint("DistanceX", 1, 1, 1, 2, Q("67 mm")),
    Sketcher.Constraint("DistanceY", 0, 2, 0, 1, Q("62 mm")),
])
sketch20.setExpression("Constraints[9]", "Params.sketch20_width")
sketch20.setExpression("Constraints[10]", "Params.sketch20_height")
pad7 = doc.addObject("PartDesign::Pad", "Pad006")
body.addObject(pad7)
pad7.Profile = sketch20
pad7.setExpression("Length", "Params.pad7_length")
pad7.Reversed = True

sketch21 = doc.addObject("Sketcher::SketchObject", "Sketch020")
body.addObject(sketch21)
sketch21.AttachmentSupport = (doc.XZ_Plane, [""])
sketch21.MapMode = "FlatFace"
sketch21.AttachmentOffset = App.Placement(V(0, 0, -83), App.Rotation())
sketch21.addGeometry([
    Part.Circle(V(0, 0, 0), V(0, 0, 1), 10),
    Part.Circle(V(-20, -19, 0), V(0, 0, 1), 2.8),
    Part.Circle(V(-20, 19, 0), V(0, 0, 1), 2.8),
    Part.Circle(V(20, 19, 0), V(0, 0, 1), 2.8),
    Part.Circle(V(20, -19, 0), V(0, 0, 1), 2.8),
], False)
sketch21.addConstraint([
    Sketcher.Constraint("Coincident", 0, 3, -1, 1),
    Sketcher.Constraint("Equal", 1, 2),
    Sketcher.Constraint("Equal", 2, 3),
    Sketcher.Constraint("Equal", 3, 4),
    Sketcher.Constraint("Symmetric", 1, 3, 3, 3, -1, 1),
    Sketcher.Constraint("Symmetric", 2, 3, 4, 3, -1, 1),
    Sketcher.Constraint("Symmetric", 2, 3, 3, 3, -2),
    Sketcher.Constraint("Diameter", 0, Q("20 mm")),
    Sketcher.Constraint("Diameter", 1, Q("5.5 mm")),
    Sketcher.Constraint("DistanceX", 1, 3, -1, 1, Q("20 mm")),
    Sketcher.Constraint("DistanceY", 1, 3, -1, 1, Q("19 mm")),
])
sketch21.setExpression("Constraints[7]", "Params.sketch21_diameter")
sketch21.setExpression("Constraints[8]", "Params.sketch21_diameter2")
pocket14 = doc.addObject("PartDesign::Pocket", "Pocket013")
body.addObject(pocket14)
pocket14.Profile = sketch21
pocket14.Type = "ThroughAll"
pocket14.Reversed = True

sketch22 = doc.addObject("Sketcher::SketchObject", "Sketch021")
body.addObject(sketch22)
sketch22.AttachmentSupport = (doc.YZ_Plane, [""])
sketch22.MapMode = "FlatFace"
sketch22.AttachmentOffset = App.Placement(V(0, 0, 57), App.Rotation())
add_polygon(sketch22, [(148, 19), (84, 19), (84, -19), (148, -19)])
sketch22.addConstraint([
    Sketcher.Constraint("Horizontal", 0),
    Sketcher.Constraint("Vertical", 1),
    Sketcher.Constraint("Horizontal", 2),
    Sketcher.Constraint("Vertical", 3),
    Sketcher.Constraint("DistanceX", 0, 2, 0, 1, Q("64 mm")),
    Sketcher.Constraint("DistanceY", 1, 2, 1, 1, Q("38 mm")),
    Sketcher.Constraint("DistanceX", -1, 1, 0, 2, Q("84 mm")),
    Sketcher.Constraint("DistanceY", -1, 1, 0, 2, Q("19 mm")),
])
sketch22.setExpression("Constraints[8]", "Params.sketch22_width")
sketch22.setExpression("Constraints[9]", "Params.sketch22_height")
pocket15 = doc.addObject("PartDesign::Pocket", "Pocket014")
body.addObject(pocket15)
pocket15.Profile = sketch22
pocket15.setExpression("Length", "Params.pocket15_length")

sketch23 = doc.addObject("Sketcher::SketchObject", "Sketch022")
body.addObject(sketch23)
sketch23.AttachmentSupport = (doc.XZ_Plane, [""])
sketch23.MapMode = "FlatFace"
sketch23.AttachmentOffset = App.Placement(V(0, 0, -116), App.Rotation())
add_polygon(sketch23, [(34, 0), (34, 35), (82, 35), (82, 0)])
sketch23.addConstraint([
    Sketcher.Constraint("Vertical", 0),
    Sketcher.Constraint("Horizontal", 1),
    Sketcher.Constraint("Vertical", 2),
    Sketcher.Constraint("Horizontal", 3),
    Sketcher.Constraint("PointOnObject", 2, 2, -1),
    Sketcher.Constraint("DistanceX", 1, 1, 1, 2, Q("49 mm")),
    Sketcher.Constraint("DistanceY", 0, 1, 0, 2, Q("35 mm")),
    Sketcher.Constraint("DistanceX", -1, 1, 0, 2, Q("33.5 mm")),
])
sketch23.setExpression("Constraints[9]", "Params.sketch23_width")
sketch23.setExpression("Constraints[10]", "Params.sketch23_height")
pocket16 = doc.addObject("PartDesign::Pocket", "Pocket015")
body.addObject(pocket16)
pocket16.Profile = sketch23
pocket16.setExpression("Length", "Params.pocket16_length")
pocket16.Reversed = True
doc.recompute()

mirrored6 = doc.addObject("PartDesign::Mirrored", "Mirrored005")
body.addObject(mirrored6)
mirrored6.Originals = [pocket16]
mirrored6.MirrorPlane = (doc.YZ_Plane, [""])
body.Tip = mirrored6

sketch24 = doc.addObject("Sketcher::SketchObject", "Sketch023")
body.addObject(sketch24)
sketch24.AttachmentSupport = (doc.XZ_Plane, [""])
sketch24.MapMode = "FlatFace"
sketch24.AttachmentOffset = App.Placement(V(0, 0, -84), App.Rotation())
sketch24.addGeometry(Part.Circle(V(65.5, 15, 0), V(0, 0, 1), 4.4), False)
sketch24.addConstraint([
    Sketcher.Constraint("Diameter", 0, Q("8.8 mm")),
    Sketcher.Constraint("DistanceY", -1, 1, 0, 3, Q("15 mm")),
    Sketcher.Constraint("DistanceX", -1, 1, 0, 3, Q("65.5 mm")),
])
sketch24.setExpression("Constraints[0]", "Params.sketch24_diameter")
pad8 = doc.addObject("PartDesign::Pad", "Pad007")
body.addObject(pad8)
pad8.Profile = sketch24
pad8.setExpression("Length", "Params.pad8_length")
pad8.Reversed = True
doc.recompute()

mirrored7 = doc.addObject("PartDesign::Mirrored", "Mirrored006")
body.addObject(mirrored7)
mirrored7.Originals = [pad8]
mirrored7.MirrorPlane = (doc.YZ_Plane, [""])
body.Tip = mirrored7

doc.recompute()
